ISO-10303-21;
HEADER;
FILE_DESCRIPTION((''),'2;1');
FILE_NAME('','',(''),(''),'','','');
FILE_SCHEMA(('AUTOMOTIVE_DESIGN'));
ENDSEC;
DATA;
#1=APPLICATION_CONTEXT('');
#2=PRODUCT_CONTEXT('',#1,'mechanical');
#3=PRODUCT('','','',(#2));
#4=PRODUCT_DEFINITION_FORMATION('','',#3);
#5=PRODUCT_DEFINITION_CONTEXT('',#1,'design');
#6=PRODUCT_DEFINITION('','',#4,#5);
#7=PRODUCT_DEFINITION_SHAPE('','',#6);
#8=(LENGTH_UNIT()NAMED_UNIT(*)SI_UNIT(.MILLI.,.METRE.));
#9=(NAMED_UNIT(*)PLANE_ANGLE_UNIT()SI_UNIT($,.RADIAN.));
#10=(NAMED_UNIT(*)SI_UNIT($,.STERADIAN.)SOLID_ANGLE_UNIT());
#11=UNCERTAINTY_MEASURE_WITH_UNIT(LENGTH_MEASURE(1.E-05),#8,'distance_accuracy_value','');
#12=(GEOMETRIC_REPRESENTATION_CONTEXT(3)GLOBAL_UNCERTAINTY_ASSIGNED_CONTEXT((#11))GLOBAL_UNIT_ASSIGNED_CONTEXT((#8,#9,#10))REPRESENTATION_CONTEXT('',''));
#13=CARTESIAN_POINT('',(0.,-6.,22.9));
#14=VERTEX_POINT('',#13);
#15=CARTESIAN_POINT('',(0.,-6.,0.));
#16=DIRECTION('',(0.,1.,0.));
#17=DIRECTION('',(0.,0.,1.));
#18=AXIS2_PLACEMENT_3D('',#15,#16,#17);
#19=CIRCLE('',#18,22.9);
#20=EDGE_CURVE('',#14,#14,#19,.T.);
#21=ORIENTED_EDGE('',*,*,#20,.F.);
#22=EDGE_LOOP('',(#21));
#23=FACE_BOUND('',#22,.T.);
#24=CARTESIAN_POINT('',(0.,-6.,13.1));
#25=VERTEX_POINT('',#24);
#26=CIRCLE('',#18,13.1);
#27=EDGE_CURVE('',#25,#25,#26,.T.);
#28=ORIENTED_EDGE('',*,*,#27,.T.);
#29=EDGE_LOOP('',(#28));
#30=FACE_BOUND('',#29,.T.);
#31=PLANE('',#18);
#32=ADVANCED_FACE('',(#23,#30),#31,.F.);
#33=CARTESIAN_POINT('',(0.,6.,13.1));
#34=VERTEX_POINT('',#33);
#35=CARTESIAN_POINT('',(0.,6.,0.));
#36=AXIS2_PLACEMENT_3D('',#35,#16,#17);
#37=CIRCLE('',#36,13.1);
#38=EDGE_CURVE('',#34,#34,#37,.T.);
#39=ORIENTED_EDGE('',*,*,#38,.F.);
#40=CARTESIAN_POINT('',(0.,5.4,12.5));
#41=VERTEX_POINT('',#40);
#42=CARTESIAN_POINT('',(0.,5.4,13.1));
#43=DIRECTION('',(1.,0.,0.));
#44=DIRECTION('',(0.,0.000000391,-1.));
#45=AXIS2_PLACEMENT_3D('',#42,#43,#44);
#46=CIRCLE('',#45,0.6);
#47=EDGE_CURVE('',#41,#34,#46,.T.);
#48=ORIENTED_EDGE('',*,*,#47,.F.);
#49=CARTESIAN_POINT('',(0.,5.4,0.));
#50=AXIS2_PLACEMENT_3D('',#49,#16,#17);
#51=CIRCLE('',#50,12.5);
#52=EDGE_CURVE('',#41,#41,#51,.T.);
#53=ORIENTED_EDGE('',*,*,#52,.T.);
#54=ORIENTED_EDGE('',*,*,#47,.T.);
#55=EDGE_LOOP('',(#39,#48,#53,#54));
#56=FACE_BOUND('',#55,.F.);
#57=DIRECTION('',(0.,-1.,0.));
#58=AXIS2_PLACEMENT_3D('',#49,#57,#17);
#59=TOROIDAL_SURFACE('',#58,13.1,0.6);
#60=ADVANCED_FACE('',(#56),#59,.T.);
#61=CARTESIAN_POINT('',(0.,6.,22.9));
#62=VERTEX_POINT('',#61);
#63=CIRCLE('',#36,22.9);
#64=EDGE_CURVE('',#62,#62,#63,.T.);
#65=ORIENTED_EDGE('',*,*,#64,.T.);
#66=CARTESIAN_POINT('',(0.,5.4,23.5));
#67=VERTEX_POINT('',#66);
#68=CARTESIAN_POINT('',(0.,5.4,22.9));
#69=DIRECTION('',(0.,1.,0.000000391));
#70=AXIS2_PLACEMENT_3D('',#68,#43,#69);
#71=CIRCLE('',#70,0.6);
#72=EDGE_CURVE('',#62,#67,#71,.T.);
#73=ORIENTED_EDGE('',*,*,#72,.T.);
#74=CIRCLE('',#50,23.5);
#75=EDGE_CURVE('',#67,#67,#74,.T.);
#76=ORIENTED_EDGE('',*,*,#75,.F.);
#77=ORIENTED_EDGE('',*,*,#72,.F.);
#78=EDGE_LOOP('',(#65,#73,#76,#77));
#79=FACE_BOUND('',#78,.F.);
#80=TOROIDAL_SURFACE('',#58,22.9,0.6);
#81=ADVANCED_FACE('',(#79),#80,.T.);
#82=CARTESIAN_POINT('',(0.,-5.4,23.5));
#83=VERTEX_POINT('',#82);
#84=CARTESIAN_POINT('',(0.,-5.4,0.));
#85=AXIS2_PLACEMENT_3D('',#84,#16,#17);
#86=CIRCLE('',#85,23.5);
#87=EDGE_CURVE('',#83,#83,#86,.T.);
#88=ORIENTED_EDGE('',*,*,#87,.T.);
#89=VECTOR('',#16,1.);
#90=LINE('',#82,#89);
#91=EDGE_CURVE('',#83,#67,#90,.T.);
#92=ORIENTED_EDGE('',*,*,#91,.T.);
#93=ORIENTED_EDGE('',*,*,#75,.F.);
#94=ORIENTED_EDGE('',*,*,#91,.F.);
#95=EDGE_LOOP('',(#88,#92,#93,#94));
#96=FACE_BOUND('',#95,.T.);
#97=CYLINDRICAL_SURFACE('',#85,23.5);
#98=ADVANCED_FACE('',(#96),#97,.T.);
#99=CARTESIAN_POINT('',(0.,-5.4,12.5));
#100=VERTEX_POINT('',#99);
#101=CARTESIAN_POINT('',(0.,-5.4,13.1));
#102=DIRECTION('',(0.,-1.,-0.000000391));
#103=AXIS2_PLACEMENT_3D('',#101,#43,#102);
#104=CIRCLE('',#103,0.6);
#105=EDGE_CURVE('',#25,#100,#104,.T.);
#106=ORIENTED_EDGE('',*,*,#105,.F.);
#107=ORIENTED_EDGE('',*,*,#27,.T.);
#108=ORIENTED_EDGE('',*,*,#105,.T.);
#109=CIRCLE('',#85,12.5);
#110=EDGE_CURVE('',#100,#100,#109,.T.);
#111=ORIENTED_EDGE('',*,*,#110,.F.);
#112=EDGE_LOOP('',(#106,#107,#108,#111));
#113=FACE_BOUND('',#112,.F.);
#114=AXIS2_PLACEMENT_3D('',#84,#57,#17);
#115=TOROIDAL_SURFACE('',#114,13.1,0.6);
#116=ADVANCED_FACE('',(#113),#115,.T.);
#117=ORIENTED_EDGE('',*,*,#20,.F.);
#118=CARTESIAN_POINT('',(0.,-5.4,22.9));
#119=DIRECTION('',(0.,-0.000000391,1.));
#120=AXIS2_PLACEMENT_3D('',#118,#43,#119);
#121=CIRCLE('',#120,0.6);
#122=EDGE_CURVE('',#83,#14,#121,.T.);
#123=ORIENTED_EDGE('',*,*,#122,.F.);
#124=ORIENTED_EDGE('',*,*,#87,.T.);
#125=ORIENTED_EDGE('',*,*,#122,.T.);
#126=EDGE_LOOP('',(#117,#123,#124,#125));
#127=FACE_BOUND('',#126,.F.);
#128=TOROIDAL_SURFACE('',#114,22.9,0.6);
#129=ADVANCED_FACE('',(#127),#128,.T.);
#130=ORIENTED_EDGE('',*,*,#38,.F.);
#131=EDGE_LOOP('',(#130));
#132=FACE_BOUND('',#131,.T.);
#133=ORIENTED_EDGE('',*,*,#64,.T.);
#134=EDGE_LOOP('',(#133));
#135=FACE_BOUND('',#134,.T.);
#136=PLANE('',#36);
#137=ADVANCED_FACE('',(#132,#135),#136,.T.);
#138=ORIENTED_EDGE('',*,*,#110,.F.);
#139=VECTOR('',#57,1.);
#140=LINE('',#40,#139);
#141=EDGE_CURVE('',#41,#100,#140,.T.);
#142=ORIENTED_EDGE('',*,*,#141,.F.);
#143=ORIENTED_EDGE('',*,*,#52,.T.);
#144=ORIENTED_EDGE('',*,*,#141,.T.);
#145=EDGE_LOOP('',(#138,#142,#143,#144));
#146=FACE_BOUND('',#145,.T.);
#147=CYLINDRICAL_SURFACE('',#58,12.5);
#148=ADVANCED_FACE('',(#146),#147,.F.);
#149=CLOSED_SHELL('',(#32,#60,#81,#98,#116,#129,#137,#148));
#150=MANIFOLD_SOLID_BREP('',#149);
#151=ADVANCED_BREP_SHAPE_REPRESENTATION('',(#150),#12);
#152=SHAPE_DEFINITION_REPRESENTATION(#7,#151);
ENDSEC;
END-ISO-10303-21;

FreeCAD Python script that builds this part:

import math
import FreeCAD as App
import Part
import Sketcher

V = App.Vector

doc = App.newDocument("Part")
body = doc.addObject("PartDesign::Body", "Body")

# Sketch on YZ plane
sketch1 = body.newObject("Sketcher::SketchObject", "Sketch")
sketch1.AttachmentSupport = (doc.getObject("YZ_Plane"), [""])
sketch1.MapMode = "FlatFace"
sketch1.addGeometry([
    Part.ArcOfCircle(Part.Circle(V(-5.4, 22.9, 0), V(0, 0, 1), 0.6), math.radians(90.000022), math.radians(179.999978)),  # 0
    Part.LineSegment(V(-6, 22.9, 0), V(-6, 13.1, 0)),  # 1
    Part.ArcOfCircle(Part.Circle(V(-5.4, 13.1, 0), V(0, 0, 1), 0.6), math.radians(-179.999978), math.radians(-90.000022)),  # 2
    Part.LineSegment(V(-5.4, 12.5, 0), V(5.4, 12.5, 0)),  # 3
    Part.ArcOfCircle(Part.Circle(V(5.4, 13.1, 0), V(0, 0, 1), 0.6), math.radians(-89.999978), math.radians(-0.000022)),  # 4
    Part.LineSegment(V(6, 13.1, 0), V(6, 22.9, 0)),  # 5
    Part.ArcOfCircle(Part.Circle(V(5.4, 22.9, 0), V(0, 0, 1), 0.6), math.radians(0.000022), math.radians(89.999978)),  # 6
    Part.LineSegment(V(5.4, 23.5, 0), V(-5.4, 23.5, 0)),  # 7
], False)
sketch1.addConstraint([
    Sketcher.Constraint("Tangent", 0, 2, 1, 1),
    Sketcher.Constraint("Tangent", 1, 2, 2, 1),
    Sketcher.Constraint("Tangent", 2, 2, 3, 1),
    Sketcher.Constraint("Tangent", 3, 2, 4, 1),
    Sketcher.Constraint("Tangent", 4, 2, 5, 1),
    Sketcher.Constraint("Tangent", 5, 2, 6, 1),
    Sketcher.Constraint("Tangent", 6, 2, 7, 1),
    Sketcher.Constraint("Tangent", 7, 2, 0, 1),
    Sketcher.Constraint("Vertical", 1),
    Sketcher.Constraint("Horizontal", 3),
    Sketcher.Constraint("Vertical", 5),
    Sketcher.Constraint("Horizontal", 7),
    Sketcher.Constraint("Equal", 0, 2),
    Sketcher.Constraint("Equal", 2, 4),
    Sketcher.Constraint("Equal", 4, 6),
    Sketcher.Constraint("Radius", 0, 0.6),
    Sketcher.Constraint("DistanceX", 3, 1, 3, 2, 10.8),
    Sketcher.Constraint("DistanceY", 1, 2, 1, 1, 9.8),
    Sketcher.Constraint("DistanceX", 0, 2, -1, 1, 6.0),
    Sketcher.Constraint("DistanceY", -1, 1, 0, 3, 22.9),
])
revolution = body.newObject("PartDesign::Revolution", "Revolution")
revolution.Profile = sketch1
revolution.ReferenceAxis = (sketch1, ["H_Axis"])
revolution.Angle = 360

doc.recompute()
